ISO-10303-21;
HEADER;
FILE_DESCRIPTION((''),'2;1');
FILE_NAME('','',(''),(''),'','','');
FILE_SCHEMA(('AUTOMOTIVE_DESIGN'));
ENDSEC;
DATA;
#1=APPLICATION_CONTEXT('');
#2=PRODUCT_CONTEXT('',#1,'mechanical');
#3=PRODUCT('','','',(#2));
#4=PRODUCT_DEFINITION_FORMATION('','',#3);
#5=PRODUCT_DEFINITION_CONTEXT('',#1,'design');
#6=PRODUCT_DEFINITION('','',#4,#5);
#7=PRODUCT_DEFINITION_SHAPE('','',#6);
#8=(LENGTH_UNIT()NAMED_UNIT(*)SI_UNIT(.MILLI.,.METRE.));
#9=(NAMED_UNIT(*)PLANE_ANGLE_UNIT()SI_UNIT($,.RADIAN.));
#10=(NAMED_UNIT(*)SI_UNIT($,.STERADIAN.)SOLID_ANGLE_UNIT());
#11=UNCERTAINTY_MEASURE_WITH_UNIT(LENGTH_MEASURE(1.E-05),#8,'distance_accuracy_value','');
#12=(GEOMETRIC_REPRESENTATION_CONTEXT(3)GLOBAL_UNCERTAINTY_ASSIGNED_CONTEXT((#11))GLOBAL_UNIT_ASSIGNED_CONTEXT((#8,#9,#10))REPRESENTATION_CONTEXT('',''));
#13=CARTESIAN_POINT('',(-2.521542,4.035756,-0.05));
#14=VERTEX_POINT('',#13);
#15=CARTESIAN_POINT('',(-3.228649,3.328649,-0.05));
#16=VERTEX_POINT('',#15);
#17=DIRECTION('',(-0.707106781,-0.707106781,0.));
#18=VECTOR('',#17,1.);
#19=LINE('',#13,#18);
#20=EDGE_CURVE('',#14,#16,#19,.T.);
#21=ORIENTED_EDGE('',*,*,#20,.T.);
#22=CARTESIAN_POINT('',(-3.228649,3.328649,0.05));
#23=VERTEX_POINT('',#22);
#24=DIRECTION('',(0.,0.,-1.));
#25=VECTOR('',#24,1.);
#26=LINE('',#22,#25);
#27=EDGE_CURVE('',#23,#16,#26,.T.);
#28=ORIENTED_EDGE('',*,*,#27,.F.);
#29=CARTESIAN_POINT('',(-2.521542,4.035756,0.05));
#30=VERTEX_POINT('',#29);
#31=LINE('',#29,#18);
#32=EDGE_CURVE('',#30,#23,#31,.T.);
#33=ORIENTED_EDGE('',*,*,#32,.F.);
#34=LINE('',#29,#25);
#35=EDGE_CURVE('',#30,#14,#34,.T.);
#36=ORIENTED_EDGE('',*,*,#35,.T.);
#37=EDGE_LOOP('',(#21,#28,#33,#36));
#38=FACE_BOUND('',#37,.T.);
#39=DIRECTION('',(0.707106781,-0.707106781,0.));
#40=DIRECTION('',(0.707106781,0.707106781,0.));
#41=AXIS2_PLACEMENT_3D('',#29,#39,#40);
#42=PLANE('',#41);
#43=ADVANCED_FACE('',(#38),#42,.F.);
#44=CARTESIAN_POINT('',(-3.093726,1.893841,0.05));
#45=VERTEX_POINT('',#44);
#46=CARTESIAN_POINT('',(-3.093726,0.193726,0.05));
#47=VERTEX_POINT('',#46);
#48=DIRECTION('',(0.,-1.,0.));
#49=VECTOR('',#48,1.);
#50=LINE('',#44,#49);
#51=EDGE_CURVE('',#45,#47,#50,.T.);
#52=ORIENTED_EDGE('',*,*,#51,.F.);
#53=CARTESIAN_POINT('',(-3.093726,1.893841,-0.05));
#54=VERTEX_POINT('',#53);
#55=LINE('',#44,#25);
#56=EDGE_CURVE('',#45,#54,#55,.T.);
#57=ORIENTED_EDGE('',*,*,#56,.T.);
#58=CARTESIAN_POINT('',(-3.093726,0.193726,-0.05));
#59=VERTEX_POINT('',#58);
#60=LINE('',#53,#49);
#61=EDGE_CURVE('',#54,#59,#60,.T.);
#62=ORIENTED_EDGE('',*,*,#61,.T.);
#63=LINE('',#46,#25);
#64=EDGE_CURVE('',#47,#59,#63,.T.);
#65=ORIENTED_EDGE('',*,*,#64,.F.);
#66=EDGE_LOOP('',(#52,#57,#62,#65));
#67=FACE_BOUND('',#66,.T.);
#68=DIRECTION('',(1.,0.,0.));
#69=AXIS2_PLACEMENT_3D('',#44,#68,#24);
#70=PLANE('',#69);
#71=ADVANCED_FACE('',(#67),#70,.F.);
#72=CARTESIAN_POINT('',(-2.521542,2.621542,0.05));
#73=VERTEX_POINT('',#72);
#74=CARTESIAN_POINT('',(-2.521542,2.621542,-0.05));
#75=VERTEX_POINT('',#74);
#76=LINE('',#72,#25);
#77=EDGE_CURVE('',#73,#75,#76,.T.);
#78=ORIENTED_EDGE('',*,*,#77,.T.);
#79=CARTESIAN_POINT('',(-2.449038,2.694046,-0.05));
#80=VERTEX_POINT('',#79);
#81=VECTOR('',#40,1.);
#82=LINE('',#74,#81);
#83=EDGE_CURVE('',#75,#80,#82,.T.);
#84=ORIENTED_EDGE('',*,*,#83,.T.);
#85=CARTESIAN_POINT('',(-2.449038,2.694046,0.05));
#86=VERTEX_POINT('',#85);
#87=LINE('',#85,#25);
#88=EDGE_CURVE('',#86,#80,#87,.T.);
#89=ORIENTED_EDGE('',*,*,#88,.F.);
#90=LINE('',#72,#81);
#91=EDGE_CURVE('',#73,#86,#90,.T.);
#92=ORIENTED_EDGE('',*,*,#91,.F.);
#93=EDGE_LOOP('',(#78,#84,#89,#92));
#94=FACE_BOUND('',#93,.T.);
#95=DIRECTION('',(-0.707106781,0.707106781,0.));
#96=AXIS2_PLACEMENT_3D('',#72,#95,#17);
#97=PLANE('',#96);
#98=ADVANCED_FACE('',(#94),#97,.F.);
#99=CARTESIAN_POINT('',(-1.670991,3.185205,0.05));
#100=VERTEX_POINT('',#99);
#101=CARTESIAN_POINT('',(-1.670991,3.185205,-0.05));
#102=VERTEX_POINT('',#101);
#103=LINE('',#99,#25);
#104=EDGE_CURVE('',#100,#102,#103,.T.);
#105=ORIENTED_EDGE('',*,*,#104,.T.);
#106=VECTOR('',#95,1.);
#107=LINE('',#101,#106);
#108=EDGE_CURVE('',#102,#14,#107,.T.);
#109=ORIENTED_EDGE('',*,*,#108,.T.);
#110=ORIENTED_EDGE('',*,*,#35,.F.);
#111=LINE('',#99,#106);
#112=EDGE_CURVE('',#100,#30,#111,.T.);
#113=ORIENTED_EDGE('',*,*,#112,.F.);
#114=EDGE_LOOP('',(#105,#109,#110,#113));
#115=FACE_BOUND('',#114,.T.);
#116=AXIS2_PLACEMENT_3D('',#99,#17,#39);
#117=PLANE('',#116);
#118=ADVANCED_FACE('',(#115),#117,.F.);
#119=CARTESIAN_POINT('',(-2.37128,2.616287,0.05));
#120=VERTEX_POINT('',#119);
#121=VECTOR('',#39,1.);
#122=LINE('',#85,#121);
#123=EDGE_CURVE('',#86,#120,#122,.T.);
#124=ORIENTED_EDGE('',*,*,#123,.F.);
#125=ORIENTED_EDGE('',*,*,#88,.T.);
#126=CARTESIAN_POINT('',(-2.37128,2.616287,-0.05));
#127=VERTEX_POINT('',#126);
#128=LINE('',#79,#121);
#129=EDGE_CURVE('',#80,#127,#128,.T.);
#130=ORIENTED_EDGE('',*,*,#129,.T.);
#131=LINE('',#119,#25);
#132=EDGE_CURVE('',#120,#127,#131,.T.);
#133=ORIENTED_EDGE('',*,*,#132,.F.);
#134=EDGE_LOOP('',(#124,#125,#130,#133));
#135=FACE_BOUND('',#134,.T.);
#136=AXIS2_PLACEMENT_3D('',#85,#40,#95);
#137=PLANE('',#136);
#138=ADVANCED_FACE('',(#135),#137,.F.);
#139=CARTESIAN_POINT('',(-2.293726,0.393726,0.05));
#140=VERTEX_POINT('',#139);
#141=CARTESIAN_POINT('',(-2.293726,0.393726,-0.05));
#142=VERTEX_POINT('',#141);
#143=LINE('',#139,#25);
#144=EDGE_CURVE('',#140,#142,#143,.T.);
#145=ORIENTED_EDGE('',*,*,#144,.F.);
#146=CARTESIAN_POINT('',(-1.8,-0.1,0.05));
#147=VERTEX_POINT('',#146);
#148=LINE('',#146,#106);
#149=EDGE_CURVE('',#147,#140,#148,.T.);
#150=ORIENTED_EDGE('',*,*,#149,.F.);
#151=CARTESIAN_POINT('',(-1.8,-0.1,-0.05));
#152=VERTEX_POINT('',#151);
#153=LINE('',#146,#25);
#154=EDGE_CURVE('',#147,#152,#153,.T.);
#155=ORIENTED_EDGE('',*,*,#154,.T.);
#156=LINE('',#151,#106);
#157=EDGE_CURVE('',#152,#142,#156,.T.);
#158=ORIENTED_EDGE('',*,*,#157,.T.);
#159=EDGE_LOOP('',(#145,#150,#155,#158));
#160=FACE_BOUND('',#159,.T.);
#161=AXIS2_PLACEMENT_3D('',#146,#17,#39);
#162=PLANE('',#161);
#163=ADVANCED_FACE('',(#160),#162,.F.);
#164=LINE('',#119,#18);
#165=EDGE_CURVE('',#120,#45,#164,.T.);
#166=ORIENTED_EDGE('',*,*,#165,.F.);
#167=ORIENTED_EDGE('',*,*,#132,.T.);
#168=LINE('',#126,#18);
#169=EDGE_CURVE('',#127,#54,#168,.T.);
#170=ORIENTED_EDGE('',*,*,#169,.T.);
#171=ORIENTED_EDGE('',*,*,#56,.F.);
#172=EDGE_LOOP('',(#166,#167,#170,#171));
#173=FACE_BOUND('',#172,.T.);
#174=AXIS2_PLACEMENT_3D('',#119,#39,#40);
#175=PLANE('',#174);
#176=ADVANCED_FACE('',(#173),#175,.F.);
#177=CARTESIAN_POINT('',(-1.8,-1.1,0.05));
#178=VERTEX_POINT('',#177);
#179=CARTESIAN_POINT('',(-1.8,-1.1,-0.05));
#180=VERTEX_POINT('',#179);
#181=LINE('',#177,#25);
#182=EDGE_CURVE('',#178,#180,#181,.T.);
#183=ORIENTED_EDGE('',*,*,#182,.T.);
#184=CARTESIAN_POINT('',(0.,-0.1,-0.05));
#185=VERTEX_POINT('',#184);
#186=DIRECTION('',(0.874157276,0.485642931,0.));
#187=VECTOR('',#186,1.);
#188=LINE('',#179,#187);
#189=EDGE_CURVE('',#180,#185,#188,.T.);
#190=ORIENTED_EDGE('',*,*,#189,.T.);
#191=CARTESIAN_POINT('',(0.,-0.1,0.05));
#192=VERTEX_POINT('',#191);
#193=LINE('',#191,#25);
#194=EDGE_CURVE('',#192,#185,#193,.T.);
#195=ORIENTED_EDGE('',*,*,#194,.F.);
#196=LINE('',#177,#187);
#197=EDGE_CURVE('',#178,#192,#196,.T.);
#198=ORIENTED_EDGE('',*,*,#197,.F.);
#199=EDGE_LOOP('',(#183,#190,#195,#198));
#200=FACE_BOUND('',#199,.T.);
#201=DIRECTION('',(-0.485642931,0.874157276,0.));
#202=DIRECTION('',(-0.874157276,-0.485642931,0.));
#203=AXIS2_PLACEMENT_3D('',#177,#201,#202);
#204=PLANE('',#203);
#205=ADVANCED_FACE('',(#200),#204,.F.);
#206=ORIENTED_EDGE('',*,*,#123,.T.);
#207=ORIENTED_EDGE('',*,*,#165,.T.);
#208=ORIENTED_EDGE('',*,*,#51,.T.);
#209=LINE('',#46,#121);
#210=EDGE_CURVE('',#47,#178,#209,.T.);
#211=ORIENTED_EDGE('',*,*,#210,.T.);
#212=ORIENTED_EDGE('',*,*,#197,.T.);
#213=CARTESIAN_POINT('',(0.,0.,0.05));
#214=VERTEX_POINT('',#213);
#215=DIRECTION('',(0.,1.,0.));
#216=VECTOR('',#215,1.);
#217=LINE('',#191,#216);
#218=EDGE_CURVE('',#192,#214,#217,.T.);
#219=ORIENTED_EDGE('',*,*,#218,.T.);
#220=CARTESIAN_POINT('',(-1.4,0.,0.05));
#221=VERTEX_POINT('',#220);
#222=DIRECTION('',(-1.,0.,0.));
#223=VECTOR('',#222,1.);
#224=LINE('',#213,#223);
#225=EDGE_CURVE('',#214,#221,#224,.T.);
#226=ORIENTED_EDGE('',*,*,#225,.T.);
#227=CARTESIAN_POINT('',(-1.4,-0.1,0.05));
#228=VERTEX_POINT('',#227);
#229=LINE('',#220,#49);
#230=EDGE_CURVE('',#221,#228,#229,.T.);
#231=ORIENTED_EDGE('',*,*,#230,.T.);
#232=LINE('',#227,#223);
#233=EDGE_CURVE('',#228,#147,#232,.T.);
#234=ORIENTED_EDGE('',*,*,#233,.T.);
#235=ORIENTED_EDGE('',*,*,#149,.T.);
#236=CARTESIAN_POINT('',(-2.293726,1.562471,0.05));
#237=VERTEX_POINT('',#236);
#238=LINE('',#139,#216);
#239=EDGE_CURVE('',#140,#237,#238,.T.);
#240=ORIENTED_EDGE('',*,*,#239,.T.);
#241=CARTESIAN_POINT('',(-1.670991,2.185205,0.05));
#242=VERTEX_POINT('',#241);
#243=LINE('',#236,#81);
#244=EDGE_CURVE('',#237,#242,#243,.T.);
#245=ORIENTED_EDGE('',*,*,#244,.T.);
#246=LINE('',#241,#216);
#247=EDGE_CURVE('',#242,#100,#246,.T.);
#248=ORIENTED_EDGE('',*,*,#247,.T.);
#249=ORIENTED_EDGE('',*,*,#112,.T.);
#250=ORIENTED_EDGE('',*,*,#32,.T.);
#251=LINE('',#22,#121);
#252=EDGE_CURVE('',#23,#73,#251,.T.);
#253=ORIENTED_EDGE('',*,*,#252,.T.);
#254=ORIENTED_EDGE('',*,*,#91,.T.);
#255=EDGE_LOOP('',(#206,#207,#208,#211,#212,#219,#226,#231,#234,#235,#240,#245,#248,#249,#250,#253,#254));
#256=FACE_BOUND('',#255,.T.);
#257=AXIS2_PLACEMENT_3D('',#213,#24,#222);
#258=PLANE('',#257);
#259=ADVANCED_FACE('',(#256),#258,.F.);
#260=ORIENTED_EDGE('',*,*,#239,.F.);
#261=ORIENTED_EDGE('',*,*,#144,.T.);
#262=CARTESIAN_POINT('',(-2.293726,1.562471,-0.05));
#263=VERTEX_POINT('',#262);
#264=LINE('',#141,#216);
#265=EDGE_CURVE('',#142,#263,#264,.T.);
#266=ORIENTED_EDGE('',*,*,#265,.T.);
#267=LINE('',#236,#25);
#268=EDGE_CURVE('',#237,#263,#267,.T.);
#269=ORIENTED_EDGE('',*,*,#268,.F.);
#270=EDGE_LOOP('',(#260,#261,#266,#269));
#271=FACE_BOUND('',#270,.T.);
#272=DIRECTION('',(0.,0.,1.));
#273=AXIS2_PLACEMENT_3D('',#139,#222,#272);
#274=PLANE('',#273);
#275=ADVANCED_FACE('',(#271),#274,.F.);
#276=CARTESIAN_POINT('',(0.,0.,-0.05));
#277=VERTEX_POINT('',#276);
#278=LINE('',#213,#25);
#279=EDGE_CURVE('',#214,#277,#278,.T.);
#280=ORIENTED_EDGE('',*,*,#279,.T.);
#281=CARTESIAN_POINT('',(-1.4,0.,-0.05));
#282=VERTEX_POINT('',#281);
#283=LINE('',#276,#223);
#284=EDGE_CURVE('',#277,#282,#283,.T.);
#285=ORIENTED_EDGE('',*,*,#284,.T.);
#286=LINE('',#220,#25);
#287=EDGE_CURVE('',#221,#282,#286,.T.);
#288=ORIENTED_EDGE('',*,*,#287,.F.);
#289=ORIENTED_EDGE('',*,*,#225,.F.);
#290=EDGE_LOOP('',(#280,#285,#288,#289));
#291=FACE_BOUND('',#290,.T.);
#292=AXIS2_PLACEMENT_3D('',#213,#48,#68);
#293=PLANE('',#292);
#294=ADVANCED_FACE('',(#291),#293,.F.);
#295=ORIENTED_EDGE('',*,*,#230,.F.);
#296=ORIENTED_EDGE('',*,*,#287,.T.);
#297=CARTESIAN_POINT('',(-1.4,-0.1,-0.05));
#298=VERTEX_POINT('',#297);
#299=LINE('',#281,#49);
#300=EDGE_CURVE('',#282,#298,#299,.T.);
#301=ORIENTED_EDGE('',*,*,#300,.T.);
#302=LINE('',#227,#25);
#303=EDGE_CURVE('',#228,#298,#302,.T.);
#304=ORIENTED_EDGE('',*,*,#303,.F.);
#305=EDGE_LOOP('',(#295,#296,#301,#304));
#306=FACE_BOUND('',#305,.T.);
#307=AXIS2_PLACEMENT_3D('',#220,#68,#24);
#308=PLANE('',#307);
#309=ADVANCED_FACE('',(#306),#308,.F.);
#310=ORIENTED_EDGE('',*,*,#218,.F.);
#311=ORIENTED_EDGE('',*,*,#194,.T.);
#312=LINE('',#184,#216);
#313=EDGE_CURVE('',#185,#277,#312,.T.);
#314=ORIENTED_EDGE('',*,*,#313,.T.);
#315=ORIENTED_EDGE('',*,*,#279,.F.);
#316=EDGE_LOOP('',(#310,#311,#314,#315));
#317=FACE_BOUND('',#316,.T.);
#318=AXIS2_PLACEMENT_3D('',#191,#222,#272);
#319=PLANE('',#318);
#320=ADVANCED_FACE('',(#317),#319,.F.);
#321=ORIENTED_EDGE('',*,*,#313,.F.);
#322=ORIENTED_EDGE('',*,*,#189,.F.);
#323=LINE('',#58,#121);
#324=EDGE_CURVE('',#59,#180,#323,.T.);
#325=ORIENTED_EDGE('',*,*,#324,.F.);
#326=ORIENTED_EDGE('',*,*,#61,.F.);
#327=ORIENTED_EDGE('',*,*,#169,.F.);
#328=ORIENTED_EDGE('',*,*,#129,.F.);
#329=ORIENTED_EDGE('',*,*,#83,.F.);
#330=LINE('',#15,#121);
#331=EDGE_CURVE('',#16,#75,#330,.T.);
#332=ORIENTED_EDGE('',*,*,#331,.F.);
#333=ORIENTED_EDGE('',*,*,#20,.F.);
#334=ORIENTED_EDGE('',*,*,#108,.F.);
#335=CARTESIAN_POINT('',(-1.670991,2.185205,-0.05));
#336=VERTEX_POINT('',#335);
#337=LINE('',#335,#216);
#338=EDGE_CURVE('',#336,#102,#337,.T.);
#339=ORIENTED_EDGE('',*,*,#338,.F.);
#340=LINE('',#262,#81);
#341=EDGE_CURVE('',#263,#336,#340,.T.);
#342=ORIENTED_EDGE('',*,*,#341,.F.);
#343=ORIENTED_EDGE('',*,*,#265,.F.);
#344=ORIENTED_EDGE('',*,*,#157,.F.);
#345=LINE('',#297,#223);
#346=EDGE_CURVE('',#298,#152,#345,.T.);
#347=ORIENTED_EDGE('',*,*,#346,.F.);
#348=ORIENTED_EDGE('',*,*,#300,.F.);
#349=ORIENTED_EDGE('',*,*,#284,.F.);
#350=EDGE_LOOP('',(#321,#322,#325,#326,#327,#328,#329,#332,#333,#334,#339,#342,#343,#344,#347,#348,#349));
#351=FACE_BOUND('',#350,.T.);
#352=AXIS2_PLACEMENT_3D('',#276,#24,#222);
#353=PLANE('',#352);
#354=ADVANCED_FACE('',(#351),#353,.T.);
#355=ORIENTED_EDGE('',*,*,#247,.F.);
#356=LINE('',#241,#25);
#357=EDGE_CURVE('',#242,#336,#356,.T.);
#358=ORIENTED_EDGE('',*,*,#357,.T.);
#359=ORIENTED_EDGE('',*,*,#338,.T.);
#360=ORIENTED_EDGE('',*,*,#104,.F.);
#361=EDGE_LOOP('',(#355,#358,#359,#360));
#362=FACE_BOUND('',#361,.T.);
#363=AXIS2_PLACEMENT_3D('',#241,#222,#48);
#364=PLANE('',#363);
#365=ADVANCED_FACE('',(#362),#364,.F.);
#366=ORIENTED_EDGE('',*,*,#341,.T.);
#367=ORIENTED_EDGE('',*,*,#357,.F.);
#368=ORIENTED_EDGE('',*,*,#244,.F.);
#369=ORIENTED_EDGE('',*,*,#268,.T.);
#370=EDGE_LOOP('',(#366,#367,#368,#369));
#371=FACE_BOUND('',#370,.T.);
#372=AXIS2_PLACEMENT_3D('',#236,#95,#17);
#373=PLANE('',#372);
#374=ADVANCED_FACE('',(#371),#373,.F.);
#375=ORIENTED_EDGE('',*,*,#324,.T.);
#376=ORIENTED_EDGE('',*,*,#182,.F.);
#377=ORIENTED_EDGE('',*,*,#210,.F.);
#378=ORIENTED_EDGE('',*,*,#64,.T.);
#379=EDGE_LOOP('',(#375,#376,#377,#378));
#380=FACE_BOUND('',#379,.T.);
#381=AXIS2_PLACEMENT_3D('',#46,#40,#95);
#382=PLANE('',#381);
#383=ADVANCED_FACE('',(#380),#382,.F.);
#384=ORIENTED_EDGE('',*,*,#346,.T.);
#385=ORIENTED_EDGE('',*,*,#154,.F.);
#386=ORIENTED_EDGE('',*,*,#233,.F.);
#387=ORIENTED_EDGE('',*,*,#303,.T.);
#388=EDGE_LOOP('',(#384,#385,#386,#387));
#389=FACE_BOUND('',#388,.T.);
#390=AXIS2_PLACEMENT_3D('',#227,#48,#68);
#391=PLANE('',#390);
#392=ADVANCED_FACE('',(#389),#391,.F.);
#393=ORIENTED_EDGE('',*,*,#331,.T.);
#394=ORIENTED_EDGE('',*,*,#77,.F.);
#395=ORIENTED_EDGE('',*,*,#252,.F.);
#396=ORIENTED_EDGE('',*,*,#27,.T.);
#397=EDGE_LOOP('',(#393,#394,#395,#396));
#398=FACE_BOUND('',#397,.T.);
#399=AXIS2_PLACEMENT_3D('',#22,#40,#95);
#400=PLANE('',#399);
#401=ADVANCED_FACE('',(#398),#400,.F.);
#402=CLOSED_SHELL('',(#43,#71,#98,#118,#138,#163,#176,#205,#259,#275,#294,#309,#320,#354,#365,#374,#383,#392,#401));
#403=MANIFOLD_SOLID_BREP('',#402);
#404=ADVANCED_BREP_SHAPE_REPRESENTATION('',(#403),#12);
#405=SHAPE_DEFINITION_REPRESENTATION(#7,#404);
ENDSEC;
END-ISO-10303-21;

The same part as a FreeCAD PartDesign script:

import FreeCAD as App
import Part
import Sketcher

V = App.Vector
Q = App.Units.Quantity


def add_polygon(sketch, points):
    """Adds a closed chain of lines whose ends are joined by coincident constraints."""
    first, n = sketch.GeometryCount, len(points)
    for a, b in zip(points, points[1:] + points[:1]):
        sketch.addGeometry(Part.LineSegment(App.Vector(*a, 0), App.Vector(*b, 0)), False)
    for i in range(n):
        sketch.addConstraint(Sketcher.Constraint("Coincident", first + i, 2, first + (i + 1) % n, 1))

doc = App.newDocument("Part")
body = doc.addObject("PartDesign::Body", "Body")

# Sketch on XY plane
sketch1 = body.newObject("Sketcher::SketchObject", "Sketch")
sketch1.AttachmentSupport = (doc.getObject("XY_Plane"), [""])
sketch1.MapMode = "FlatFace"
add_polygon(sketch1, [(0, 0), (-1.4, 0), (-1.4, -0.1), (-1.8, -0.1), (-2.29, 0.39), (-2.29, 1.56), (-1.67, 2.19), (-1.67, 3.19), (-2.52, 4.04), (-3.23, 3.33), (-2.52, 2.62), (-2.45, 2.69), (-2.37, 2.62), (-3.09, 1.89), (-3.09, 0.19), (-1.8, -1.1), (0, -0.1)])  # lines 0-16
sketch1.addConstraint(Sketcher.Constraint("Horizontal", 0))
sketch1.addConstraint(Sketcher.Constraint("Vertical", 1))
sketch1.addConstraint(Sketcher.Constraint("Horizontal", 2))
sketch1.addConstraint(Sketcher.Constraint("Vertical", 4))
sketch1.addConstraint(Sketcher.Constraint("Vertical", 6))
sketch1.addConstraint(Sketcher.Constraint("Vertical", 13))
sketch1.addConstraint(Sketcher.Constraint("Vertical", 16))
sketch1.addConstraint(Sketcher.Constraint("Coincident", 16, 2, -1, 1))
sketch1.addConstraint(Sketcher.Constraint("Perpendicular", 3, 5))
sketch1.addConstraint(Sketcher.Constraint("Perpendicular", 5, 7))
sketch1.addConstraint(Sketcher.Constraint("Perpendicular", 7, 8))
sketch1.addConstraint(Sketcher.Constraint("Perpendicular", 8, 9))
sketch1.addConstraint(Sketcher.Constraint("Perpendicular", 9, 10))
sketch1.addConstraint(Sketcher.Constraint("Perpendicular", 10, 11))
sketch1.addConstraint(Sketcher.Constraint("Perpendicular", 11, 12))
sketch1.addConstraint(Sketcher.Constraint("Perpendicular", 12, 14))
sketch1.addConstraint(Sketcher.Constraint("Horizontal", 2, 2, 15, 2))
sketch1.addConstraint(Sketcher.Constraint("Vertical", 7, 2, 9, 2))
sketch1.addConstraint(Sketcher.Constraint("Vertical", 2, 2, 14, 2))
sketch1.addConstraint(Sketcher.Constraint("Equal", 8, 9))
sketch1.addConstraint(Sketcher.Constraint("DistanceY", 6, 1, 6, 2, Q("1 mm")))
sketch1.addConstraint(Sketcher.Constraint("Distance", 8, Q("1 mm")))
sketch1.addConstraint(Sketcher.Constraint("DistanceX", 0, 2, 0, 1, Q("1.4 mm")))
sketch1.addConstraint(Sketcher.Constraint("DistanceX", 2, 2, 2, 1, Q("0.4 mm")))
sketch1.addConstraint(Sketcher.Constraint("DistanceY", 1, 2, 1, 1, Q("0.1 mm")))
sketch1.addConstraint(Sketcher.Constraint("DistanceY", 14, 2, 2, 2, Q("1 mm")))
sketch1.addConstraint(Sketcher.Constraint("DistanceX", 12, 2, 4, 2, Q("0.8 mm")))
sketch1.addConstraint(Sketcher.Constraint("DistanceY", 12, 2, 9, 2, Q("0.727701 mm")))
sketch1.addConstraint(Sketcher.Constraint("Distance", 5, Q("0.880679 mm")))
sketch1.addConstraint(Sketcher.Constraint("Distance", 7, Q("1.20286 mm")))
sketch1.addConstraint(Sketcher.Constraint("DistanceY", 4, 1, 4, 2, Q("1.168745 mm")))
sketch1.addConstraint(Sketcher.Constraint("DistanceY", -1, 1, 4, 2, Q("1.562471 mm")))
sketch1.addConstraint(Sketcher.Constraint("DistanceX", 10, 2, -1, 1, Q("2.449038 mm")))
pad1 = body.newObject("PartDesign::Pad", "Pad")
pad1.Profile = sketch1
pad1.Length = 0.1
pad1.Midplane = True

doc.recompute()
